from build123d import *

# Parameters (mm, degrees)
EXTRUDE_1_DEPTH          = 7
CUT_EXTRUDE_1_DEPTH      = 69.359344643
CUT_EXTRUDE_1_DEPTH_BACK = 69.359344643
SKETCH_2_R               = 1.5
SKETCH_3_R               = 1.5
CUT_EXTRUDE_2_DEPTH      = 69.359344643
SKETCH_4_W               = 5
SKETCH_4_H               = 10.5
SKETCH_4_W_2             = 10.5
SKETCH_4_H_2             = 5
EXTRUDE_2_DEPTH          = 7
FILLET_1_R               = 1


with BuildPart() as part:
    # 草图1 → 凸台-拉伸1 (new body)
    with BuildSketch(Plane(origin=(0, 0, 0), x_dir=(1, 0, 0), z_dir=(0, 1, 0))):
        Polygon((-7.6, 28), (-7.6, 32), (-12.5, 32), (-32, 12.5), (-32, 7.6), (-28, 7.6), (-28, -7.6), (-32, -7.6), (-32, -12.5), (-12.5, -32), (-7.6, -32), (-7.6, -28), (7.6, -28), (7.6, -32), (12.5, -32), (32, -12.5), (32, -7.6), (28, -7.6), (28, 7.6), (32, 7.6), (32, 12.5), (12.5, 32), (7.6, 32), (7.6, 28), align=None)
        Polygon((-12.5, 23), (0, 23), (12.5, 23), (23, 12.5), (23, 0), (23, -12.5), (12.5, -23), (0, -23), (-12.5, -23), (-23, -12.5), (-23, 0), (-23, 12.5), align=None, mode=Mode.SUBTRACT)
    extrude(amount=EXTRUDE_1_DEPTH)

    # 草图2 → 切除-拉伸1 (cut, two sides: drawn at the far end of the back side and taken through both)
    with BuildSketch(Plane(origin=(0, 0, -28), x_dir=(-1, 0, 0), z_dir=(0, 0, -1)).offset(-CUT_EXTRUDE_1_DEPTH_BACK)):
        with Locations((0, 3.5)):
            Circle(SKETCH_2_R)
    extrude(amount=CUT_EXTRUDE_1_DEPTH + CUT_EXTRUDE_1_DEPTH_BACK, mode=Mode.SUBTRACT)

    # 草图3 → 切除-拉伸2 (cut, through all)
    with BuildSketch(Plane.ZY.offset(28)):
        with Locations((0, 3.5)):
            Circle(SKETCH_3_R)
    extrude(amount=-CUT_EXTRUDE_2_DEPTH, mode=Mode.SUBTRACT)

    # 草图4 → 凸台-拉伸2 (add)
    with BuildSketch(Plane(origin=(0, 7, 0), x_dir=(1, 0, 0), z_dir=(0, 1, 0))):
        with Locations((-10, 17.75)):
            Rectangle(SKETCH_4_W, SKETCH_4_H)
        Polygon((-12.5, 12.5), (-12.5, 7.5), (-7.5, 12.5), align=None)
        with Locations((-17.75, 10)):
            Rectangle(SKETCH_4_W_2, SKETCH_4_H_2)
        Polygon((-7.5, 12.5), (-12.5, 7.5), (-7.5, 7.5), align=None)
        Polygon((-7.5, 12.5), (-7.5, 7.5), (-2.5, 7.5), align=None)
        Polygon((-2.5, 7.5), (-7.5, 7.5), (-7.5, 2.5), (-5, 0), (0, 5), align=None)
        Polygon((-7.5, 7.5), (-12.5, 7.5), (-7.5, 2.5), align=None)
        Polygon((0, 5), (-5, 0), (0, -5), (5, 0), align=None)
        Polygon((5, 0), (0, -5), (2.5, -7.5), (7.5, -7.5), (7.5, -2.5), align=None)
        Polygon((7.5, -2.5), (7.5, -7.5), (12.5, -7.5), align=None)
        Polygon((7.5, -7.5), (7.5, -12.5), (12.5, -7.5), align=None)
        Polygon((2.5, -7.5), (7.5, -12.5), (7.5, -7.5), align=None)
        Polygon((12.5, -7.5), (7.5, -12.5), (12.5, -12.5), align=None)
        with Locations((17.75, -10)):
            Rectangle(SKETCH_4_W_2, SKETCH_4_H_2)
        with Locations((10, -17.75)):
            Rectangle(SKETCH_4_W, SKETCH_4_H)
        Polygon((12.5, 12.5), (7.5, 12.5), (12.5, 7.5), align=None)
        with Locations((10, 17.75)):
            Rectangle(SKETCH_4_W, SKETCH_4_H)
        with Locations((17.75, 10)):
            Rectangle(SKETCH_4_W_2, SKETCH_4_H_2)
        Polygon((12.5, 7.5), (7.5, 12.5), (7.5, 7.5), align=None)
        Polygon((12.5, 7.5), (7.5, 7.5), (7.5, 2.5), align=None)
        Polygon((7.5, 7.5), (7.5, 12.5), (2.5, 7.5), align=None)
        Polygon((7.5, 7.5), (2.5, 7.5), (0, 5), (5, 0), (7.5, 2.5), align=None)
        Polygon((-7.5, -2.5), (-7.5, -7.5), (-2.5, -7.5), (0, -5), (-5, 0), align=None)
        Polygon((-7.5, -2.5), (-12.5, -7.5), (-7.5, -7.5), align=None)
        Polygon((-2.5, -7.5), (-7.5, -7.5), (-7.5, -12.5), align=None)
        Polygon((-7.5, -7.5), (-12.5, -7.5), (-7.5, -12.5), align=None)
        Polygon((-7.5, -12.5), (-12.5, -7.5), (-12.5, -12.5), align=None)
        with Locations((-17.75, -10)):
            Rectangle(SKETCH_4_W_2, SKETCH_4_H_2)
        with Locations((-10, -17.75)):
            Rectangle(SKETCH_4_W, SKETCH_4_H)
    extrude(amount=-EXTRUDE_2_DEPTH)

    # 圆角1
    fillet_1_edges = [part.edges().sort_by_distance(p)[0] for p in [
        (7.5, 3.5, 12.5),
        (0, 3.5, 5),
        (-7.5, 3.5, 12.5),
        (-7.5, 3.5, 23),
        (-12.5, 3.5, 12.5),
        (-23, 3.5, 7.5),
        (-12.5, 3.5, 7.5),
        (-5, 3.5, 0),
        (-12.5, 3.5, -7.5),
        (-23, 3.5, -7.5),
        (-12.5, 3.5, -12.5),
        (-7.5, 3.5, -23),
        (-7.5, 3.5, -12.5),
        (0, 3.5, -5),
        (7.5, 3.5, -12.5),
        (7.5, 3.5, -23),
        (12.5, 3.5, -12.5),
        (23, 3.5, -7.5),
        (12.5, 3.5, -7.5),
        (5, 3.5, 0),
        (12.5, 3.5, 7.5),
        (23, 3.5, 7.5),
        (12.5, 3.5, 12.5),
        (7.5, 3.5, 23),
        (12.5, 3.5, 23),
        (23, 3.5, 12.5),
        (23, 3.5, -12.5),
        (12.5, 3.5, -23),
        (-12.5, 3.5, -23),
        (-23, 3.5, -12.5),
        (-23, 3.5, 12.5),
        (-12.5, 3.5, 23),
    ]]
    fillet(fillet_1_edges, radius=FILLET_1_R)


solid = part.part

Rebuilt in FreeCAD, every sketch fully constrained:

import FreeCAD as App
import Part
import Sketcher

V = App.Vector


def edges_at(feature, points):
    """Names of the edges that pass closest to the given points."""
    edges = feature.Shape.Edges
    near = lambda p: min(range(len(edges)), key=lambda i: edges[i].distToShape(Part.Vertex(*p))[0])
    return sorted({f"Edge{near(p) + 1}" for p in points})


def add_polygon(sketch, points):
    """Adds a closed chain of lines whose ends are joined by coincident constraints."""
    first, n = sketch.GeometryCount, len(points)
    for a, b in zip(points, points[1:] + points[:1]):
        sketch.addGeometry(Part.LineSegment(App.Vector(*a, 0), App.Vector(*b, 0)), False)
    for i in range(n):
        sketch.addConstraint(Sketcher.Constraint("Coincident", first + i, 2, first + (i + 1) % n, 1))

doc = App.newDocument("Part")
params = doc.addObject("Spreadsheet::Sheet", "Params")
for row, (alias, value) in enumerate([
    ("sketch1_width", "4 mm"),
    ("sketch1_width2", "25 mm"),
    ("sketch1_width3", "4.9 mm"),
    ("pad1_length", "7 mm"),
    ("sketch2_diameter", "3 mm"),
    ("sketch3_diameter", "3 mm"),
    ("sketch4_width", "5 mm"),
    ("sketch4_width2", "10.5 mm"),
    ("pad2_length", "7 mm"),
    ("fillet_radius", "1 mm"),
], start=1):
    params.set(f"A{row}", alias)
    params.set(f"B{row}", "=" + value)
    params.setAlias(f"B{row}", alias)

body = doc.addObject("PartDesign::Body", "Body")

# Sketch on XZ plane
sketch1 = body.newObject("Sketcher::SketchObject", "Sketch")
sketch1.AttachmentSupport = (doc.getObject("XZ_Plane"), [""])
sketch1.MapMode = "FlatFace"
add_polygon(sketch1, [(-7.6, -28), (-7.6, -32), (-12.5, -32), (-32, -12.5), (-32, -7.6), (-28, -7.6), (-28, 7.6), (-32, 7.6), (-32, 12.5), (-12.5, 32), (-7.6, 32), (-7.6, 28), (7.6, 28), (7.6, 32), (12.5, 32), (32, 12.5), (32, 7.6), (28, 7.6), (28, -7.6), (32, -7.6), (32, -12.5), (12.5, -32), (7.6, -32), (7.6, -28)])  # lines 0-23
add_polygon(sketch1, [(-23, -12.5), (-12.5, -23), (12.5, -23), (23, -12.5), (23, 12.5), (12.5, 23), (-12.5, 23), (-23, 12.5)])  # lines 24-31
sketch1.addConstraint([
    Sketcher.Constraint("Vertical", 0),
    Sketcher.Constraint("Horizontal", 1),
    Sketcher.Constraint("Vertical", 3),
    Sketcher.Constraint("Horizontal", 4),
    Sketcher.Constraint("Vertical", 5),
    Sketcher.Constraint("Horizontal", 6),
    Sketcher.Constraint("Vertical", 7),
    Sketcher.Constraint("Horizontal", 9),
    Sketcher.Constraint("Vertical", 10),
    Sketcher.Constraint("Horizontal", 11),
    Sketcher.Constraint("Vertical", 12),
    Sketcher.Constraint("Horizontal", 13),
    Sketcher.Constraint("Vertical", 15),
    Sketcher.Constraint("Horizontal", 16),
    Sketcher.Constraint("Vertical", 17),
    Sketcher.Constraint("Horizontal", 18),
    Sketcher.Constraint("Vertical", 19),
    Sketcher.Constraint("Horizontal", 21),
    Sketcher.Constraint("Vertical", 22),
    Sketcher.Constraint("Horizontal", 23),
    Sketcher.Constraint("Horizontal", 25),
    Sketcher.Constraint("Vertical", 27),
    Sketcher.Constraint("Horizontal", 29),
    Sketcher.Constraint("Vertical", 31),
    Sketcher.Constraint("Symmetric", 0, 2, 12, 2, -1, 1),
    Sketcher.Constraint("Symmetric", 2, 2, 14, 2, -1, 1),
    Sketcher.Constraint("Symmetric", 4, 2, 16, 2, -1, 1),
    Sketcher.Constraint("Symmetric", 6, 2, 18, 2, -1, 1),
    Sketcher.Constraint("Symmetric", 8, 2, 20, 2, -1, 1),
    Sketcher.Constraint("Symmetric", 10, 2, 22, 2, -1, 1),
    Sketcher.Constraint("Symmetric", 24, 2, 28, 2, -1, 1),
    Sketcher.Constraint("Symmetric", 26, 2, 30, 2, -1, 1),
    Sketcher.Constraint("Symmetric", 9, 2, 12, 2, -2),
    Sketcher.Constraint("Symmetric", 7, 2, 14, 2, -2),
    Sketcher.Constraint("Perpendicular", 2, 8),
    Sketcher.Constraint("Perpendicular", 8, 14),
    Sketcher.Constraint("Perpendicular", 14, 20),
    Sketcher.Constraint("Perpendicular", 20, 24),
    Sketcher.Constraint("Perpendicular", 24, 26),
    Sketcher.Constraint("Perpendicular", 26, 28),
    Sketcher.Constraint("Perpendicular", 28, 30),
    Sketcher.Constraint("Horizontal", 6, 2, 15, 2),
    Sketcher.Constraint("Horizontal", 19, 2, 26, 2),
    Sketcher.Constraint("Horizontal", 14, 2, 27, 2),
    Sketcher.Constraint("Vertical", 1, 2, 8, 2),
    Sketcher.Constraint("Vertical", 8, 2, 24, 2),
    Sketcher.Constraint("Equal", 18, 0),
    Sketcher.Constraint("Equal", 21, 3),
    Sketcher.Constraint("Equal", 23, 5),
    Sketcher.Constraint("DistanceX", 4, 1, 4, 2, 4.0),
    Sketcher.Constraint("DistanceX", 25, 1, 25, 2, 25.0),
    Sketcher.Constraint("DistanceX", 1, 2, 1, 1, 4.9),
    Sketcher.Constraint("DistanceY", 0, 2, -1, 1, 32.0),
    Sketcher.Constraint("DistanceY", 24, 2, -1, 1, 23.0),
])
sketch1.setExpression("Constraints[81]", "Params.sketch1_width")
sketch1.setExpression("Constraints[82]", "Params.sketch1_width2")
sketch1.setExpression("Constraints[83]", "Params.sketch1_width3")
pad1 = body.newObject("PartDesign::Pad", "Pad")
pad1.Profile = sketch1
pad1.setExpression("Length", "Params.pad1_length")
pad1.Reversed = True

# Sketch on XY plane
sketch2 = body.newObject("Sketcher::SketchObject", "Sketch001")
sketch2.AttachmentSupport = (doc.getObject("XY_Plane"), [""])
sketch2.MapMode = "FlatFace"
sketch2.AttachmentOffset = App.Placement(V(0, 0, -28), App.Rotation())
sketch2.addGeometry(Part.Circle(V(0, 3.5, 0), V(0, 0, 1), 1.5), False)
sketch2.addConstraint([
    Sketcher.Constraint("PointOnObject", 0, 3, -2),
    Sketcher.Constraint("Diameter", 0, 3.0),
    Sketcher.Constraint("DistanceY", -1, 1, 0, 3, 3.5),
])
sketch2.setExpression("Constraints[1]", "Params.sketch2_diameter")
pocket1 = body.newObject("PartDesign::Pocket", "Pocket")
pocket1.Profile = sketch2
pocket1.Type = "ThroughAll"
pocket1.Midplane = True

# Sketch on YZ plane
sketch3 = body.newObject("Sketcher::SketchObject", "Sketch002")
sketch3.AttachmentSupport = (doc.getObject("YZ_Plane"), [""])
sketch3.MapMode = "FlatFace"
sketch3.AttachmentOffset = App.Placement(V(0, 0, -28), App.Rotation())
sketch3.addGeometry(Part.Circle(V(3.5, 0, 0), V(0, 0, 1), 1.5), False)
sketch3.addConstraint([
    Sketcher.Constraint("PointOnObject", 0, 3, -1),
    Sketcher.Constraint("Diameter", 0, 3.0),
    Sketcher.Constraint("DistanceX", -1, 1, 0, 3, 3.5),
])
sketch3.setExpression("Constraints[1]", "Params.sketch3_diameter")
pocket2 = body.newObject("PartDesign::Pocket", "Pocket001")
pocket2.Profile = sketch3
pocket2.Type = "ThroughAll"
pocket2.Reversed = True

# Sketch on XZ plane
sketch4 = body.newObject("Sketcher::SketchObject", "Sketch003")
sketch4.AttachmentSupport = (doc.getObject("XZ_Plane"), [""])
sketch4.MapMode = "FlatFace"
sketch4.AttachmentOffset = App.Placement(V(0, 0, -7), App.Rotation())
add_polygon(sketch4, [(-12, -23), (-12, -12), (-23, -12), (-23, -8), (-12, -8), (-5, 0), (-12, 8), (-23, 8), (-23, 12), (-12, 12), (-12, 23), (-8, 23), (-8, 12), (0, 5), (8, 12), (8, 23), (12, 23), (12, 12), (23, 12), (23, 8), (12, 8), (5, 0), (12, -8), (23, -8), (23, -12), (12, -12), (12, -23), (8, -23), (8, -12), (0, -5), (-8, -12), (-8, -23)])  # lines 0-31
sketch4.addConstraint([
    Sketcher.Constraint("Vertical", 0),
    Sketcher.Constraint("Horizontal", 1),
    Sketcher.Constraint("Vertical", 2),
    Sketcher.Constraint("Horizontal", 3),
    Sketcher.Constraint("Horizontal", 6),
    Sketcher.Constraint("Vertical", 7),
    Sketcher.Constraint("Horizontal", 8),
    Sketcher.Constraint("Vertical", 9),
    Sketcher.Constraint("Horizontal", 10),
    Sketcher.Constraint("Vertical", 11),
    Sketcher.Constraint("Vertical", 14),
    Sketcher.Constraint("Horizontal", 15),
    Sketcher.Constraint("Vertical", 16),
    Sketcher.Constraint("Horizontal", 17),
    Sketcher.Constraint("Vertical", 18),
    Sketcher.Constraint("Horizontal", 19),
    Sketcher.Constraint("Horizontal", 22),
    Sketcher.Constraint("Vertical", 23),
    Sketcher.Constraint("Horizontal", 24),
    Sketcher.Constraint("Vertical", 25),
    Sketcher.Constraint("Horizontal", 26),
    Sketcher.Constraint("Vertical", 27),
    Sketcher.Constraint("Vertical", 30),
    Sketcher.Constraint("Horizontal", 31),
    Sketcher.Constraint("Symmetric", 0, 2, 16, 2, -1, 1),
    Sketcher.Constraint("Symmetric", 2, 2, 18, 2, -1, 1),
    Sketcher.Constraint("Symmetric", 4, 2, 20, 2, -1, 1),
    Sketcher.Constraint("Symmetric", 5, 2, 21, 2, -1, 1),
    Sketcher.Constraint("Symmetric", 7, 2, 23, 2, -1, 1),
    Sketcher.Constraint("Symmetric", 9, 2, 25, 2, -1, 1),
    Sketcher.Constraint("Symmetric", 11, 2, 27, 2, -1, 1),
    Sketcher.Constraint("Symmetric", 12, 2, 28, 2, -1, 1),
    Sketcher.Constraint("Symmetric", 13, 2, 29, 2, -1, 1),
    Sketcher.Constraint("Symmetric", 11, 2, 13, 2, -2),
    Sketcher.Constraint("Symmetric", 9, 2, 15, 2, -2),
    Sketcher.Constraint("Symmetric", 7, 2, 17, 2, -2),
    Sketcher.Constraint("Symmetric", 5, 2, 19, 2, -2),
    Sketcher.Constraint("PointOnObject", 4, 2, -1),
    Sketcher.Constraint("PointOnObject", 12, 2, -2),
    Sketcher.Constraint("Perpendicular", 4, 5),
    Sketcher.Constraint("Parallel", 5, 12),
    Sketcher.Constraint("Perpendicular", 12, 13),
    Sketcher.Constraint("Horizontal", 8, 2, 11, 2),
    Sketcher.Constraint("Horizontal", 26, 2, 30, 2),
    Sketcher.Constraint("Vertical", 0, 2, 3, 2),
    Sketcher.Constraint("Equal", 24, 0),
    Sketcher.Constraint("Equal", 31, 2),
    Sketcher.Constraint("Equal", 5, 12),
    Sketcher.Constraint("DistanceX", 10, 1, 10, 2, 5.0),
    Sketcher.Constraint("DistanceX", 1, 2, 1, 1, 10.5),
    Sketcher.Constraint("DistanceX", 1, 2, -1, 1, 23.0),
])
sketch4.setExpression("Constraints[80]", "Params.sketch4_width")
sketch4.setExpression("Constraints[81]", "Params.sketch4_width2")
pad2 = body.newObject("PartDesign::Pad", "Pad001")
pad2.Profile = sketch4
pad2.setExpression("Length", "Params.pad2_length")
doc.recompute()

fillet = body.newObject("PartDesign::Fillet", "Fillet")
fillet.Base = (pad2, edges_at(pad2, [
    (7.5, 3.5, 12.5),
    (0, 3.5, 5),
    (-7.5, 3.5, 12.5),
    (-7.5, 3.5, 23),
    (-12.5, 3.5, 12.5),
    (-23, 3.5, 7.5),
    (-12.5, 3.5, 7.5),
    (-5, 3.5, 0),
    (-12.5, 3.5, -7.5),
    (-23, 3.5, -7.5),
    (-12.5, 3.5, -12.5),
    (-7.5, 3.5, -23),
    (-7.5, 3.5, -12.5),
    (0, 3.5, -5),
    (7.5, 3.5, -12.5),
    (7.5, 3.5, -23),
    (12.5, 3.5, -12.5),
    (23, 3.5, -7.5),
    (12.5, 3.5, -7.5),
    (5, 3.5, 0),
    (12.5, 3.5, 7.5),
    (23, 3.5, 7.5),
    (12.5, 3.5, 12.5),
    (7.5, 3.5, 23),
    (12.5, 3.5, 23),
    (23, 3.5, 12.5),
    (23, 3.5, -12.5),
    (12.5, 3.5, -23),
    (-12.5, 3.5, -23),
    (-23, 3.5, -12.5),
    (-23, 3.5, 12.5),
    (-12.5, 3.5, 23),
]))
fillet.setExpression("Radius", "Params.fillet_radius")

doc.recompute()
